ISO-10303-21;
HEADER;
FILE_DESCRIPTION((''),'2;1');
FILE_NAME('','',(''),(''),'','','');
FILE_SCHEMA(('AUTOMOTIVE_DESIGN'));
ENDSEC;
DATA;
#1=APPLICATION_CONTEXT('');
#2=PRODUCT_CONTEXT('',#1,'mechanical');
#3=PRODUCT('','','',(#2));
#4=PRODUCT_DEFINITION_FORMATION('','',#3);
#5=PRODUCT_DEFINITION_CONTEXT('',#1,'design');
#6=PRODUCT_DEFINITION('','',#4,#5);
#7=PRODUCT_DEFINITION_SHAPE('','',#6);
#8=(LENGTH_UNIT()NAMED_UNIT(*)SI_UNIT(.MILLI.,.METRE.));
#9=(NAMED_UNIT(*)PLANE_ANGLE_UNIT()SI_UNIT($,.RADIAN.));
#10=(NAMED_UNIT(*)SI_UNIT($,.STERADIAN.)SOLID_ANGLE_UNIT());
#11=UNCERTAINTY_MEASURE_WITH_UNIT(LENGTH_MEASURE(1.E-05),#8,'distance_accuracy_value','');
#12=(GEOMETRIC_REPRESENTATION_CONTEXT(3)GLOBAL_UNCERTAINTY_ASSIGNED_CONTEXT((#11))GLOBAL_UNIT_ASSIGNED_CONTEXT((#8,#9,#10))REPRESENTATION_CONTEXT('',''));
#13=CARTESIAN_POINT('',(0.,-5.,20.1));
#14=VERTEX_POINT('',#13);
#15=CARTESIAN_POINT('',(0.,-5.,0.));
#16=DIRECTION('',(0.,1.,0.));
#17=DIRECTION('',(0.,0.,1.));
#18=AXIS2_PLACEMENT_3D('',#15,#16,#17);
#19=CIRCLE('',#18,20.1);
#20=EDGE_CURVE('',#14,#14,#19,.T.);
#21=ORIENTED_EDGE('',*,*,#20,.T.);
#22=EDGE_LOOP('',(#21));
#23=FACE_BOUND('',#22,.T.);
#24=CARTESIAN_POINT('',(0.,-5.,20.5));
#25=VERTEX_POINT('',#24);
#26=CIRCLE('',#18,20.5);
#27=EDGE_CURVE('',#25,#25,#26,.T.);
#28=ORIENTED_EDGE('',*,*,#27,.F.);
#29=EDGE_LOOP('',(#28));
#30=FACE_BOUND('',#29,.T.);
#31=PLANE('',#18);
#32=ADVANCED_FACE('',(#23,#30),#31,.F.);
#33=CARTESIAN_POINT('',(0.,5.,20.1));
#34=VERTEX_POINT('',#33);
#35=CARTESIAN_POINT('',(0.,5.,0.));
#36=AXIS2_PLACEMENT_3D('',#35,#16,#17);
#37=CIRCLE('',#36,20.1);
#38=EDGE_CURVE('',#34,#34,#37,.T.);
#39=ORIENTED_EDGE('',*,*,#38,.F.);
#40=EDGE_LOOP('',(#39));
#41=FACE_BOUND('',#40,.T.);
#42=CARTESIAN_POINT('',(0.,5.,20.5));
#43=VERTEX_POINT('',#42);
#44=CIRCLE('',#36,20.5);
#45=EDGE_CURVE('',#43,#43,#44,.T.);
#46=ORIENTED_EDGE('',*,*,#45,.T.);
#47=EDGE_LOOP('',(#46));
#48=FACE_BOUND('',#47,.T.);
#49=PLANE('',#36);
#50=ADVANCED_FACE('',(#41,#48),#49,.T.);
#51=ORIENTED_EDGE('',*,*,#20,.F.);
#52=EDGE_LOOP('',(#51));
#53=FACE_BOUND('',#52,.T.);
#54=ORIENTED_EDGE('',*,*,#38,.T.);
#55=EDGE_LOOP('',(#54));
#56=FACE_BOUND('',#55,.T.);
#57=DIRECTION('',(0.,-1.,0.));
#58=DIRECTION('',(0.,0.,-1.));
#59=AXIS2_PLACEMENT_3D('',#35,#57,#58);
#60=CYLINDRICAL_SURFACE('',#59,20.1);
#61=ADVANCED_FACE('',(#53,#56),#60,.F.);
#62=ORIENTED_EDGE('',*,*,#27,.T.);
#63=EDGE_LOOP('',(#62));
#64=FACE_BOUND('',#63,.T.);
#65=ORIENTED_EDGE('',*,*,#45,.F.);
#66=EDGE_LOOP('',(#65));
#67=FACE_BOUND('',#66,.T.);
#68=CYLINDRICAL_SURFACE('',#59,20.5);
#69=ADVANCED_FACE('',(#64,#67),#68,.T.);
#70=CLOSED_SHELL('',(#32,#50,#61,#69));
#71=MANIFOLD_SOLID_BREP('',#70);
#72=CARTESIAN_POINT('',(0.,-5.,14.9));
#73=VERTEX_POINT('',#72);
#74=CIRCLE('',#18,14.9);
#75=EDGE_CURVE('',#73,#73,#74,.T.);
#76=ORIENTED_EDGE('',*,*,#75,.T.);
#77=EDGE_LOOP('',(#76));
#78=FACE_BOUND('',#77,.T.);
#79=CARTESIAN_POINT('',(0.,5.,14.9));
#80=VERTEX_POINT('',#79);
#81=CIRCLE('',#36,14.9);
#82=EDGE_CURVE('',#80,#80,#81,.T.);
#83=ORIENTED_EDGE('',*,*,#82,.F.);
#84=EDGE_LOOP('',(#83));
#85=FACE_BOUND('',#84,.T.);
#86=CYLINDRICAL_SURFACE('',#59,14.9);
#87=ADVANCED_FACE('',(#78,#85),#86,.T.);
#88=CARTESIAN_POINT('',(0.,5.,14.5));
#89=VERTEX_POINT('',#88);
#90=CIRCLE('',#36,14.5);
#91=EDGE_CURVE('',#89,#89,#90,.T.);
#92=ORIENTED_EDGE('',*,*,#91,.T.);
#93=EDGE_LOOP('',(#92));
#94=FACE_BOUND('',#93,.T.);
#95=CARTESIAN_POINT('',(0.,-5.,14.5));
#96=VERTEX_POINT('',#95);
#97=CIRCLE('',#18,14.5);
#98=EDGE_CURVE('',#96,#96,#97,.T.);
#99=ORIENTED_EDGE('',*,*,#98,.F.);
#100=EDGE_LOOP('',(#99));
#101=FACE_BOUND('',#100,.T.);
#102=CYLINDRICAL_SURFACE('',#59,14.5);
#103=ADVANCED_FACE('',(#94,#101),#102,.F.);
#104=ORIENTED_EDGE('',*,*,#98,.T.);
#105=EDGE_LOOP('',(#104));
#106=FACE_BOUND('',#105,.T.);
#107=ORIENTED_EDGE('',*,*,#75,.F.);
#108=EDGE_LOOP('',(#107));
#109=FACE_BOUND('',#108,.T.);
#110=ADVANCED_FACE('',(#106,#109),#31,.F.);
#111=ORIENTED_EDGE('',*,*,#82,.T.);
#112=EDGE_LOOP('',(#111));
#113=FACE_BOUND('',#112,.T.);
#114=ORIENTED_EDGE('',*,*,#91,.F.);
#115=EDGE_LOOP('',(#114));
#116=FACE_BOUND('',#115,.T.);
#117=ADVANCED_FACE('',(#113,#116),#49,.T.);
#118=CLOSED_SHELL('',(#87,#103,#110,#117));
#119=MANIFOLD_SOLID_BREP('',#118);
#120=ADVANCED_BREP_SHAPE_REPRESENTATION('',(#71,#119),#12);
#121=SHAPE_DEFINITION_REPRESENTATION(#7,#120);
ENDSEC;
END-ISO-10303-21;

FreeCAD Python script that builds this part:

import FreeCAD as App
import Part
import Sketcher
Q = App.Units.Quantity

doc = App.newDocument("Part")
body = doc.addObject("PartDesign::Body", "Body")

sketch1 = body.newObject("Sketcher::SketchObject", "Sketch")
sketch1.AttachmentSupport = (doc.getObject("XZ_Plane"), [""])
sketch1.MapMode = "FlatFace"
sketch1.addGeometry([
    Part.Circle(App.Vector(0, 0, 0), App.Vector(0, 0, 1), 20.5),
    Part.Circle(App.Vector(0, 0, 0), App.Vector(0, 0, 1), 20.1),
], False)
sketch1.addConstraint([
    Sketcher.Constraint("Coincident", 0, 3, -1, 1),
    Sketcher.Constraint("Coincident", 1, 3, -1, 1),
    Sketcher.Constraint("Diameter", 0, Q("41 mm")),
    Sketcher.Constraint("Diameter", 1, Q("40.2 mm")),
])
pad1 = body.newObject("PartDesign::Pad", "Pad")
pad1.Profile = sketch1
pad1.Length = 10
pad1.Midplane = True
body2 = doc.addObject("PartDesign::Body", "Body001")

sketch2 = body2.newObject("Sketcher::SketchObject", "Sketch001")
sketch2.AttachmentSupport = (doc.getObject("XZ_Plane001"), [""])
sketch2.MapMode = "FlatFace"
sketch2.addGeometry([
    Part.Circle(App.Vector(0, 0, 0), App.Vector(0, 0, 1), 14.9),
    Part.Circle(App.Vector(0, 0, 0), App.Vector(0, 0, 1), 14.5),
], False)
sketch2.addConstraint([
    Sketcher.Constraint("Coincident", 0, 3, -1, 1),
    Sketcher.Constraint("Coincident", 1, 3, -1, 1),
    Sketcher.Constraint("Diameter", 1, Q("29 mm")),
    Sketcher.Constraint("Diameter", 0, Q("29.8 mm")),
])
pad2 = body2.newObject("PartDesign::Pad", "Pad001")
pad2.Profile = sketch2
pad2.Length = 10
pad2.Midplane = True

doc.recompute()
